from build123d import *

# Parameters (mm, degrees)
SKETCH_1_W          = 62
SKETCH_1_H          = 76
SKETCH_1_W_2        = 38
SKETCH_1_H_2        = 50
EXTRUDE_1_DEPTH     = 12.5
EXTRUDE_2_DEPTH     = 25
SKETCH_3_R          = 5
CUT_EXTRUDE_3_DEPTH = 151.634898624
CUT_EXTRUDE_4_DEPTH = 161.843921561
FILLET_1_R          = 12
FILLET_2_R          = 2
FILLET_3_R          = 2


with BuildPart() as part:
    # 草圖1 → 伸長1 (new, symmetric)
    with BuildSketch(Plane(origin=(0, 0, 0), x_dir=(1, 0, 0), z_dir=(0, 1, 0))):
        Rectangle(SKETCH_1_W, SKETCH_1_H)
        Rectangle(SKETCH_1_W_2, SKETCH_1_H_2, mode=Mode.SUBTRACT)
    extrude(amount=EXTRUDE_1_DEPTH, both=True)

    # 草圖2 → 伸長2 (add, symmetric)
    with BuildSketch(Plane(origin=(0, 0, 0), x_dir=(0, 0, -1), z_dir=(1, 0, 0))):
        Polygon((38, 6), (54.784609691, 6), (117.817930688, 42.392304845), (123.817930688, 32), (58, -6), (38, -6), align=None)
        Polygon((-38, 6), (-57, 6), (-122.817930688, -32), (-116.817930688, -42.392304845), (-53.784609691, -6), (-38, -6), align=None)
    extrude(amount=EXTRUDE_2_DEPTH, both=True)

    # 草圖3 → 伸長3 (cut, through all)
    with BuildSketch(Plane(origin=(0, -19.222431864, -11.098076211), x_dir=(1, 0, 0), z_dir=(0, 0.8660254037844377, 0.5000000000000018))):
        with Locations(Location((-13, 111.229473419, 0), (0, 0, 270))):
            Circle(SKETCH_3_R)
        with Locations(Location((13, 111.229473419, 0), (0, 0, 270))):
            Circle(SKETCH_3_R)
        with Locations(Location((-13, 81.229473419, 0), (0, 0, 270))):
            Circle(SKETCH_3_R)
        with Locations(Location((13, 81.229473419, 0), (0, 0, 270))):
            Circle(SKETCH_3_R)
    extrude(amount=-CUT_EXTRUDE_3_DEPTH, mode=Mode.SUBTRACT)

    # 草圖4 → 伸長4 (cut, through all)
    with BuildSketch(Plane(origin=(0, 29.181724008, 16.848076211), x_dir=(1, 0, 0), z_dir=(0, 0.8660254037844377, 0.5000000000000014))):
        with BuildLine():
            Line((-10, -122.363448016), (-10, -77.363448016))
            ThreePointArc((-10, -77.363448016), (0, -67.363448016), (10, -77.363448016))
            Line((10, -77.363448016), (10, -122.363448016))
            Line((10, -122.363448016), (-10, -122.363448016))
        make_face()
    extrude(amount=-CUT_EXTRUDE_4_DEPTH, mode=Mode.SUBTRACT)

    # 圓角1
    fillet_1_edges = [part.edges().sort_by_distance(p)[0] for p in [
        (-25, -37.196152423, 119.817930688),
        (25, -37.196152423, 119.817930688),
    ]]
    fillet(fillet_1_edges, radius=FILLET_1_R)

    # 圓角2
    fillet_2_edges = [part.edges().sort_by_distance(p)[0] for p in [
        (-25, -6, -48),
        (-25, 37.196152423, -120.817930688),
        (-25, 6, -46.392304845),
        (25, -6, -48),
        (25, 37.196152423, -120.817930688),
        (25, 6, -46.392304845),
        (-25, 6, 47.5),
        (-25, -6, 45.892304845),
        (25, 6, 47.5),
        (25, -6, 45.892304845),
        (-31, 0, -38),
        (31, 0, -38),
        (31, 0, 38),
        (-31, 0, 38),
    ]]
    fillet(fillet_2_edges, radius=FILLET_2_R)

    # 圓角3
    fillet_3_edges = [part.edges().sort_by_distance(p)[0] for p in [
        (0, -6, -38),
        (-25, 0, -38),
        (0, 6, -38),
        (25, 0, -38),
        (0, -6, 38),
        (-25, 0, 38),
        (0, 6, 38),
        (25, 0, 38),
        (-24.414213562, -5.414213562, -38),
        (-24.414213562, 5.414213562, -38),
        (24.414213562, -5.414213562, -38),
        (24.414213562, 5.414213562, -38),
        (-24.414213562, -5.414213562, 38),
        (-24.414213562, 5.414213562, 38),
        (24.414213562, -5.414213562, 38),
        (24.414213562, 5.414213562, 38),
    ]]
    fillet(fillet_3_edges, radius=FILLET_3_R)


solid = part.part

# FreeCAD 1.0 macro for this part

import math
import FreeCAD as App
import Part
import Sketcher
Q = App.Units.Quantity


def edges_at(feature, points):
    """Names of the edges that pass closest to the given points."""
    edges = feature.Shape.Edges
    near = lambda p: min(range(len(edges)), key=lambda i: edges[i].distToShape(Part.Vertex(*p))[0])
    return sorted({f"Edge{near(p) + 1}" for p in points})


def add_polygon(sketch, points):
    """Adds a closed chain of lines whose ends are joined by coincident constraints."""
    first, n = sketch.GeometryCount, len(points)
    for a, b in zip(points, points[1:] + points[:1]):
        sketch.addGeometry(Part.LineSegment(App.Vector(*a, 0), App.Vector(*b, 0)), False)
    for i in range(n):
        sketch.addConstraint(Sketcher.Constraint("Coincident", first + i, 2, first + (i + 1) % n, 1))

doc = App.newDocument("Part")
params = doc.addObject("Spreadsheet::Sheet", "Params")
for row, (alias, value) in enumerate([
    ("sketch1_width", "62 mm"),
    ("sketch1_width2", "38 mm"),
    ("sketch1_height", "76 mm"),
    ("sketch1_height2", "50 mm"),
    ("pad1_length", "25 mm"),
    ("sketch2_width", "12 mm"),
    ("sketch2_height", "20 mm"),
    ("sketch2_height2", "19 mm"),
    ("sketch2_length", "76 mm"),
    ("sketch2_length2", "12 mm"),
    ("pad2_length", "50 mm"),
    ("sketch3_diameter", "10 mm"),
    ("sketch4_radius", "10 mm"),
    ("sketch4_height", "45 mm"),
    ("fillet_radius", "12 mm"),
    ("fillet2_radius", "2 mm"),
    ("fillet3_radius", "2 mm"),
], start=1):
    params.set(f"A{row}", alias)
    params.set(f"B{row}", "=" + value)
    params.setAlias(f"B{row}", alias)

body = doc.addObject("PartDesign::Body", "Body")

# Sketch on XZ plane
sketch1 = body.newObject("Sketcher::SketchObject", "Sketch")
sketch1.AttachmentSupport = (doc.getObject("XZ_Plane"), [""])
sketch1.MapMode = "FlatFace"
add_polygon(sketch1, [(-31, -38), (-31, 38), (31, 38), (31, -38)])  # lines 0-3
add_polygon(sketch1, [(19, 25), (-19, 25), (-19, -25), (19, -25)])  # lines 4-7
sketch1.addConstraint(Sketcher.Constraint("Vertical", 0))
sketch1.addConstraint(Sketcher.Constraint("Horizontal", 1))
sketch1.addConstraint(Sketcher.Constraint("Vertical", 2))
sketch1.addConstraint(Sketcher.Constraint("Horizontal", 3))
sketch1.addConstraint(Sketcher.Constraint("Horizontal", 4))
sketch1.addConstraint(Sketcher.Constraint("Vertical", 5))
sketch1.addConstraint(Sketcher.Constraint("Horizontal", 6))
sketch1.addConstraint(Sketcher.Constraint("Vertical", 7))
sketch1.addConstraint(Sketcher.Constraint("Symmetric", 0, 2, 2, 2, -1, 1))
sketch1.addConstraint(Sketcher.Constraint("Symmetric", 4, 2, 6, 2, -1, 1))
sketch1.addConstraint(Sketcher.Constraint("DistanceX", 1, 1, 1, 2, Q("62 mm")))
sketch1.addConstraint(Sketcher.Constraint("DistanceX", 4, 2, 4, 1, Q("38 mm")))
sketch1.addConstraint(Sketcher.Constraint("DistanceY", 0, 1, 0, 2, Q("76 mm")))
sketch1.addConstraint(Sketcher.Constraint("DistanceY", 5, 2, 5, 1, Q("50 mm")))
sketch1.setExpression("Constraints[18]", "Params.sketch1_width")
sketch1.setExpression("Constraints[19]", "Params.sketch1_width2")
sketch1.setExpression("Constraints[20]", "Params.sketch1_height")
sketch1.setExpression("Constraints[21]", "Params.sketch1_height2")
pad1 = body.newObject("PartDesign::Pad", "Pad")
pad1.Profile = sketch1
pad1.setExpression("Length", "Params.pad1_length")
pad1.Midplane = True

# Sketch on YZ plane
sketch2 = body.newObject("Sketcher::SketchObject", "Sketch001")
sketch2.AttachmentSupport = (doc.getObject("YZ_Plane"), [""])
sketch2.MapMode = "FlatFace"
add_polygon(sketch2, [(6, -54.78461), (6, -38), (-6, -38), (-6, -58), (32, -123.817931), (42.392305, -117.817931)])  # lines 0-5
add_polygon(sketch2, [(6, 38), (6, 57), (-32, 122.817931), (-42.392305, 116.817931), (-6, 53.78461), (-6, 38)])  # lines 6-11
sketch2.addConstraint(Sketcher.Constraint("Vertical", 0))
sketch2.addConstraint(Sketcher.Constraint("Horizontal", 1))
sketch2.addConstraint(Sketcher.Constraint("Vertical", 2))
sketch2.addConstraint(Sketcher.Constraint("Vertical", 6))
sketch2.addConstraint(Sketcher.Constraint("Vertical", 10))
sketch2.addConstraint(Sketcher.Constraint("Horizontal", 11))
sketch2.addConstraint(Sketcher.Constraint("Symmetric", 0, 2, 10, 2, -1, 1))
sketch2.addConstraint(Sketcher.Constraint("Perpendicular", 3, 4))
sketch2.addConstraint(Sketcher.Constraint("Perpendicular", 4, 5))
sketch2.addConstraint(Sketcher.Constraint("Parallel", 5, 7))
sketch2.addConstraint(Sketcher.Constraint("Perpendicular", 7, 8))
sketch2.addConstraint(Sketcher.Constraint("Perpendicular", 8, 9))
sketch2.addConstraint(Sketcher.Constraint("Vertical", 5, 2, 6, 2))
sketch2.addConstraint(Sketcher.Constraint("Vertical", 2, 2, 9, 2))
sketch2.addConstraint(Sketcher.Constraint("Equal", 3, 7))
sketch2.addConstraint(Sketcher.Constraint("Equal", 4, 8))
sketch2.addConstraint(Sketcher.Constraint("DistanceX", 1, 2, 1, 1, Q("12 mm")))
sketch2.addConstraint(Sketcher.Constraint("DistanceY", 2, 2, 2, 1, Q("20 mm")))
sketch2.addConstraint(Sketcher.Constraint("DistanceY", 6, 1, 6, 2, Q("19 mm")))
sketch2.addConstraint(Sketcher.Constraint("Angle", 3, Q("-60 deg")))
sketch2.addConstraint(Sketcher.Constraint("Distance", 3, Q("76 mm")))
sketch2.addConstraint(Sketcher.Constraint("Distance", 4, Q("12 mm")))
sketch2.addConstraint(Sketcher.Constraint("DistanceY", 0, 2, -1, 1, Q("38 mm")))
sketch2.setExpression("Constraints[28]", "Params.sketch2_width")
sketch2.setExpression("Constraints[29]", "Params.sketch2_height")
sketch2.setExpression("Constraints[30]", "Params.sketch2_height2")
sketch2.setExpression("Constraints[32]", "Params.sketch2_length")
sketch2.setExpression("Constraints[33]", "Params.sketch2_length2")
pad2 = body.newObject("PartDesign::Pad", "Pad001")
pad2.Profile = sketch2
pad2.setExpression("Length", "Params.pad2_length")
pad2.Midplane = True

# Sketch on an angled plane
sketch3 = body.newObject("Sketcher::SketchObject", "Sketch002")
sketch3.Placement = App.Placement(App.Vector(0, -19.222432, -11.098076), App.Rotation(App.Vector(1, 0, 0), App.Vector(0, 0.5, -0.866025404), App.Vector(0, 0.866025404, 0.5), "ZXY"))
sketch3.addGeometry(Part.Circle(App.Vector(-13, 111.229473, 0), App.Vector(0, 0, 1), 5), False)
sketch3.addGeometry(Part.Circle(App.Vector(13, 111.229473, 0), App.Vector(0, 0, 1), 5), False)
sketch3.addGeometry(Part.Circle(App.Vector(-13, 81.229473, 0), App.Vector(0, 0, 1), 5), False)
sketch3.addGeometry(Part.Circle(App.Vector(13, 81.229473, 0), App.Vector(0, 0, 1), 5), False)
sketch3.addConstraint(Sketcher.Constraint("Equal", 0, 1))
sketch3.addConstraint(Sketcher.Constraint("Equal", 1, 2))
sketch3.addConstraint(Sketcher.Constraint("Equal", 2, 3))
sketch3.addConstraint(Sketcher.Constraint("Symmetric", 0, 3, 1, 3, -2))
sketch3.addConstraint(Sketcher.Constraint("Symmetric", 2, 3, 3, 3, -2))
sketch3.addConstraint(Sketcher.Constraint("Vertical", 0, 3, 2, 3))
sketch3.addConstraint(Sketcher.Constraint("Diameter", 0, Q("10 mm")))
sketch3.addConstraint(Sketcher.Constraint("DistanceX", 0, 3, -1, 1, Q("13 mm")))
sketch3.addConstraint(Sketcher.Constraint("DistanceY", 2, 3, 0, 3, Q("30 mm")))
sketch3.addConstraint(Sketcher.Constraint("DistanceY", -1, 1, 0, 3, Q("111.229473 mm")))
sketch3.setExpression("Constraints[6]", "Params.sketch3_diameter")
pocket1 = body.newObject("PartDesign::Pocket", "Pocket")
pocket1.Profile = sketch3
pocket1.Type = "ThroughAll"

# Sketch on an angled plane
sketch4 = body.newObject("Sketcher::SketchObject", "Sketch003")
sketch4.Placement = App.Placement(App.Vector(0, 29.181724, 16.848076), App.Rotation(App.Vector(1, 0, 0), App.Vector(0, 0.5, -0.866025404), App.Vector(0, 0.866025404, 0.5), "ZXY"))
sketch4.addGeometry(Part.LineSegment(App.Vector(-10, -77.363448, 0), App.Vector(-10, -122.363448, 0)), False)
sketch4.addGeometry(Part.LineSegment(App.Vector(-10, -122.363448, 0), App.Vector(10, -122.363448, 0)), False)
sketch4.addGeometry(Part.LineSegment(App.Vector(10, -122.363448, 0), App.Vector(10, -77.363448, 0)), False)
sketch4.addGeometry(Part.ArcOfCircle(Part.Circle(App.Vector(0, -77.363448, 0), App.Vector(0, 0, 1), 10), math.radians(0), math.radians(180)), False)
sketch4.addConstraint(Sketcher.Constraint("Coincident", 0, 2, 1, 1))
sketch4.addConstraint(Sketcher.Constraint("Coincident", 1, 2, 2, 1))
sketch4.addConstraint(Sketcher.Constraint("Tangent", 2, 2, 3, 1))
sketch4.addConstraint(Sketcher.Constraint("Tangent", 3, 2, 0, 1))
sketch4.addConstraint(Sketcher.Constraint("Vertical", 0))
sketch4.addConstraint(Sketcher.Constraint("Horizontal", 1))
sketch4.addConstraint(Sketcher.Constraint("Vertical", 2))
sketch4.addConstraint(Sketcher.Constraint("PointOnObject", 3, 3, -2))
sketch4.addConstraint(Sketcher.Constraint("Radius", 3, Q("10 mm")))
sketch4.addConstraint(Sketcher.Constraint("DistanceY", 0, 2, 0, 1, Q("45 mm")))
sketch4.addConstraint(Sketcher.Constraint("DistanceY", 3, 3, -1, 1, Q("77.363448 mm")))
sketch4.setExpression("Constraints[8]", "Params.sketch4_radius")
sketch4.setExpression("Constraints[9]", "Params.sketch4_height")
pocket2 = body.newObject("PartDesign::Pocket", "Pocket001")
pocket2.Profile = sketch4
pocket2.Type = "ThroughAll"
doc.recompute()

fillet = body.newObject("PartDesign::Fillet", "Fillet")
fillet.Base = (pocket2, edges_at(pocket2, [(-25, -37.196, 119.818), (25, -37.196, 119.818)]))
fillet.setExpression("Radius", "Params.fillet_radius")
doc.recompute()

fillet2 = body.newObject("PartDesign::Fillet", "Fillet001")
fillet2.Base = (fillet, edges_at(fillet, [
    (-25, -6, -48),
    (-25, 37.196, -120.818),
    (-25, 6, -46.392),
    (25, -6, -48),
    (25, 37.196, -120.818),
    (25, 6, -46.392),
    (-25, 6, 47.5),
    (-25, -6, 45.892),
    (25, 6, 47.5),
    (25, -6, 45.892),
    (-31, 0, -38),
    (31, 0, -38),
    (31, 0, 38),
    (-31, 0, 38),
]))
fillet2.setExpression("Radius", "Params.fillet2_radius")
doc.recompute()

fillet3 = body.newObject("PartDesign::Fillet", "Fillet002")
fillet3.Base = (fillet2, edges_at(fillet2, [
    (0, -6, -38),
    (-25, 0, -38),
    (0, 6, -38),
    (25, 0, -38),
    (0, -6, 38),
    (-25, 0, 38),
    (0, 6, 38),
    (25, 0, 38),
    (-24.414, -5.414, -38),
    (-24.414, 5.414, -38),
    (24.414, -5.414, -38),
    (24.414, 5.414, -38),
    (-24.414, -5.414, 38),
    (-24.414, 5.414, 38),
    (24.414, -5.414, 38),
    (24.414, 5.414, 38),
]))
fillet3.setExpression("Radius", "Params.fillet3_radius")

doc.recompute()
